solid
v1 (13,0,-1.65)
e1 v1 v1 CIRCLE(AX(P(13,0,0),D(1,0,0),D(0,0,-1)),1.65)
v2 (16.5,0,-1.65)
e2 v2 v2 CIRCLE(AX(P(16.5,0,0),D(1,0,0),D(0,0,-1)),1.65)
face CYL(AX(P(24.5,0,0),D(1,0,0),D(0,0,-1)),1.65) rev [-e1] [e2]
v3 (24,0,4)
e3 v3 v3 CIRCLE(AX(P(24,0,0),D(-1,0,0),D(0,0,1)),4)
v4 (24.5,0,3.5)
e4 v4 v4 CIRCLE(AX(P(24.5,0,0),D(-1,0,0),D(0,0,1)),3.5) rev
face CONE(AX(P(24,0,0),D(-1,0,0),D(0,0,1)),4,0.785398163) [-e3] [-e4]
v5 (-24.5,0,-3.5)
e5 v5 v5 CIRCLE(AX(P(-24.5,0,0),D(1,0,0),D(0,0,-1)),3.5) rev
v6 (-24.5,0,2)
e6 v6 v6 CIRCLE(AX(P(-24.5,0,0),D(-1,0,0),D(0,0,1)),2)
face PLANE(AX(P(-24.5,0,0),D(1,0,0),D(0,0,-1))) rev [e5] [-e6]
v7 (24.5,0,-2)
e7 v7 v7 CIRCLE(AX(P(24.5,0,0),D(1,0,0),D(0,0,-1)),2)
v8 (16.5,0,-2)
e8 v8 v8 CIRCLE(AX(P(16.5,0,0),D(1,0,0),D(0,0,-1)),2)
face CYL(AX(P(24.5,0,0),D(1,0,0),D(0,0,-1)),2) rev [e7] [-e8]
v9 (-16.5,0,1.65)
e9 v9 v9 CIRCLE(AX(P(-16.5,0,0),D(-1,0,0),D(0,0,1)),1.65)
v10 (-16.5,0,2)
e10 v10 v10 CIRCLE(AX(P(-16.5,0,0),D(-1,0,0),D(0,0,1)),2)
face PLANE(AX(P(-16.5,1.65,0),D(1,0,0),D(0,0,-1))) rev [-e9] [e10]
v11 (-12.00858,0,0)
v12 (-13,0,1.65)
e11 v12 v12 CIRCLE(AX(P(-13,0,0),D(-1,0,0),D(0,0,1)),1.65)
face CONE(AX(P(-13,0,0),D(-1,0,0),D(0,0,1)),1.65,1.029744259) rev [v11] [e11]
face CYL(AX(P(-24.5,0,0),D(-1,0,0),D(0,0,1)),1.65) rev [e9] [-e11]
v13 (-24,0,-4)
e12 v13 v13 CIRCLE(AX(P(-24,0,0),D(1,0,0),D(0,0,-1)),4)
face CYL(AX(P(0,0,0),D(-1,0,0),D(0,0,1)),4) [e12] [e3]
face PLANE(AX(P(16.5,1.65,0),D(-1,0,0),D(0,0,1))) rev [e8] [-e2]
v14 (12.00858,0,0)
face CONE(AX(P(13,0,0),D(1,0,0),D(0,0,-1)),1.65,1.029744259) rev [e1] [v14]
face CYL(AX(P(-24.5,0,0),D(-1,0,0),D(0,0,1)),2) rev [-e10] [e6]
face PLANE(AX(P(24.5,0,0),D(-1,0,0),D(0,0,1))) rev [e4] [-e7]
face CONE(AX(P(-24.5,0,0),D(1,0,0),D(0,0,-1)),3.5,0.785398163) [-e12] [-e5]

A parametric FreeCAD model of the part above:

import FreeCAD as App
import Part
import Sketcher
Q = App.Units.Quantity


def edges_at(feature, points):
    """Names of the edges that pass closest to the given points."""
    edges = feature.Shape.Edges
    near = lambda p: min(range(len(edges)), key=lambda i: edges[i].distToShape(Part.Vertex(*p))[0])
    return sorted({f"Edge{near(p) + 1}" for p in points})


def add_polygon(sketch, points):
    """Adds a closed chain of lines whose ends are joined by coincident constraints."""
    first, n = sketch.GeometryCount, len(points)
    for a, b in zip(points, points[1:] + points[:1]):
        sketch.addGeometry(Part.LineSegment(App.Vector(*a, 0), App.Vector(*b, 0)), False)
    for i in range(n):
        sketch.addConstraint(Sketcher.Constraint("Coincident", first + i, 2, first + (i + 1) % n, 1))

doc = App.newDocument("Part")
body = doc.addObject("PartDesign::Body", "Body")

# Sketch on XY plane
sketch1 = doc.addObject("Sketcher::SketchObject", "Sketch")
body.addObject(sketch1)
sketch1.AttachmentSupport = (doc.XY_Plane, [""])
sketch1.MapMode = "FlatFace"
add_polygon(sketch1, [(-24.5, 4), (-24.5, 0), (24.5, 0), (24.5, 4)])  # lines 0-3
sketch1.addConstraint([
    Sketcher.Constraint("Vertical", 0),
    Sketcher.Constraint("Horizontal", 1),
    Sketcher.Constraint("Vertical", 2),
    Sketcher.Constraint("Horizontal", 3),
    Sketcher.Constraint("Symmetric", 0, 2, 1, 2, -1, 1),
    Sketcher.Constraint("DistanceX", 1, 1, 1, 2, Q("49 mm")),
    Sketcher.Constraint("DistanceY", 0, 2, 0, 1, Q("4 mm")),
])
revolution = doc.addObject("PartDesign::Revolution", "Revolution")
body.addObject(revolution)
revolution.Profile = sketch1
revolution.ReferenceAxis = (sketch1, ["H_Axis"])
revolution.Angle = 360

# Sketch on YZ plane
sketch2 = doc.addObject("Sketcher::SketchObject", "Sketch001")
body.addObject(sketch2)
sketch2.AttachmentSupport = (doc.YZ_Plane, [""])
sketch2.MapMode = "FlatFace"
sketch2.AttachmentOffset = App.Placement(App.Vector(0, 0, 24.5), App.Rotation())
sketch2.addGeometry(Part.Circle(App.Vector(0, 0, 0), App.Vector(0, 0, 1), 1.6), False)
sketch2.addConstraint([
    Sketcher.Constraint("Coincident", 0, 3, -1, 1),
    Sketcher.Constraint("Diameter", 0, Q("3.3 mm")),
])
doc.recompute()
hole = doc.addObject("PartDesign::Hole", "Hole")
body.addObject(hole)
hole.Profile = sketch2
hole.ThreadType = "None"
hole.Diameter = 3.3
hole.DepthType = "Dimension"
hole.Depth = 11.5
hole.DrillPoint = "Angled"
hole.DrillPointAngle = 118
hole.HoleCutType = "Counterbore"
hole.HoleCutDiameter = 4
hole.HoleCutDepth = 8

# Sketch on YZ plane
sketch3 = doc.addObject("Sketcher::SketchObject", "Sketch002")
body.addObject(sketch3)
sketch3.AttachmentSupport = (doc.YZ_Plane, [""])
sketch3.MapMode = "FlatFace"
sketch3.AttachmentOffset = App.Placement(App.Vector(0, 0, -24.5), App.Rotation())
sketch3.addGeometry(Part.Circle(App.Vector(0, 0, 0), App.Vector(0, 0, 1), 1.6), False)
sketch3.addConstraint([
    Sketcher.Constraint("Coincident", 0, 3, -1, 1),
    Sketcher.Constraint("Diameter", 0, Q("3.3 mm")),
])
doc.recompute()
hole2 = doc.addObject("PartDesign::Hole", "Hole001")
body.addObject(hole2)
hole2.Profile = sketch3
hole2.ThreadType = "None"
hole2.Diameter = 3.3
hole2.DepthType = "Dimension"
hole2.Depth = 11.5
hole2.DrillPoint = "Angled"
hole2.DrillPointAngle = 118
hole2.HoleCutType = "Counterbore"
hole2.HoleCutDiameter = 4
hole2.HoleCutDepth = 8
hole2.Reversed = True
doc.recompute()

chamfer = doc.addObject("PartDesign::Chamfer", "Chamfer")
body.addObject(chamfer)
chamfer.Base = (hole2, edges_at(hole2, [(24.5, 0, -4), (-24.5, 0, -4)]))
chamfer.Size = 0.5

doc.recompute()
